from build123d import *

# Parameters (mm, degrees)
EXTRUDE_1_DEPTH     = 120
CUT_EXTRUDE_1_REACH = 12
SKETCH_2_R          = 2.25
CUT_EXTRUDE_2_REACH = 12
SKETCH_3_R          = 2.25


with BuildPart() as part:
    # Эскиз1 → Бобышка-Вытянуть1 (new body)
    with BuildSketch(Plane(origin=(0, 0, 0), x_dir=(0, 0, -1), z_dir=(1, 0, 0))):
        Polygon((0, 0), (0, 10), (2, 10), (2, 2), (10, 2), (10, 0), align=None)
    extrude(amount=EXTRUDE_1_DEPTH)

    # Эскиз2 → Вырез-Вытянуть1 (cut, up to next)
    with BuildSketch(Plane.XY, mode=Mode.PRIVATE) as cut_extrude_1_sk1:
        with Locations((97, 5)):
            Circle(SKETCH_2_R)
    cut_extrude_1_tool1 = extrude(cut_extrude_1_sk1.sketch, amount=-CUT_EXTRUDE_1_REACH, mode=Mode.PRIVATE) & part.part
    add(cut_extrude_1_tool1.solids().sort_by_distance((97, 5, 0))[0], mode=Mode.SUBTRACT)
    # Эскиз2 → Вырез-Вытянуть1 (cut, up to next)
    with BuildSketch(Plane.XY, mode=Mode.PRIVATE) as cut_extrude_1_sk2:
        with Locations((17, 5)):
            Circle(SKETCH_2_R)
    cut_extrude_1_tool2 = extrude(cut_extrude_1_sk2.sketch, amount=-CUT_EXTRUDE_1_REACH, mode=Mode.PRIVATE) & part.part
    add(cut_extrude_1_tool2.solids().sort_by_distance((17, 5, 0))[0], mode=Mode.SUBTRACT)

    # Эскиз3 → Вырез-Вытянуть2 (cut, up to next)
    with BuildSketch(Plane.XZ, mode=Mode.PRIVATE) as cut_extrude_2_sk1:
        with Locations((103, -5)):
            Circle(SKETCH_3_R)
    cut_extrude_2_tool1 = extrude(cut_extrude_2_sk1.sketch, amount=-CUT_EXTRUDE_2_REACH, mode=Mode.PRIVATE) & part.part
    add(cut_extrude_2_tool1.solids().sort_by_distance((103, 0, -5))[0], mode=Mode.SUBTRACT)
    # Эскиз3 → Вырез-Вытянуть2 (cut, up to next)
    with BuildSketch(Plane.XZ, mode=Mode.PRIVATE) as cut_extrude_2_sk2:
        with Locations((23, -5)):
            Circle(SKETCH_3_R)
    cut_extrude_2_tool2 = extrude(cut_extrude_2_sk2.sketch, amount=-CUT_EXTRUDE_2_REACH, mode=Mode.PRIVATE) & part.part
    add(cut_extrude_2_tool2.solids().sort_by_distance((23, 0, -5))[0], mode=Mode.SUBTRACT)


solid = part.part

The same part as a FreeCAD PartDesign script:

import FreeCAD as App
import Part
import Sketcher
Q = App.Units.Quantity


def add_polygon(sketch, points):
    """Adds a closed chain of lines whose ends are joined by coincident constraints."""
    first, n = sketch.GeometryCount, len(points)
    for a, b in zip(points, points[1:] + points[:1]):
        sketch.addGeometry(Part.LineSegment(App.Vector(*a, 0), App.Vector(*b, 0)), False)
    for i in range(n):
        sketch.addConstraint(Sketcher.Constraint("Coincident", first + i, 2, first + (i + 1) % n, 1))

doc = App.newDocument("Part")
body = doc.addObject("PartDesign::Body", "Body")

# Sketch on YZ plane
sketch1 = body.newObject("Sketcher::SketchObject", "Sketch")
sketch1.AttachmentSupport = (doc.getObject("YZ_Plane"), [""])
sketch1.MapMode = "FlatFace"
add_polygon(sketch1, [(10, 0), (0, 0), (0, -10), (2, -10), (2, -2), (10, -2)])  # lines 0-5
sketch1.addConstraint(Sketcher.Constraint("Horizontal", 0))
sketch1.addConstraint(Sketcher.Constraint("Vertical", 1))
sketch1.addConstraint(Sketcher.Constraint("Horizontal", 2))
sketch1.addConstraint(Sketcher.Constraint("Vertical", 3))
sketch1.addConstraint(Sketcher.Constraint("Horizontal", 4))
sketch1.addConstraint(Sketcher.Constraint("Vertical", 5))
sketch1.addConstraint(Sketcher.Constraint("Coincident", 0, 2, -1, 1))
sketch1.addConstraint(Sketcher.Constraint("Equal", 0, 1))
sketch1.addConstraint(Sketcher.Constraint("Equal", 4, 3))
sketch1.addConstraint(Sketcher.Constraint("DistanceX", 0, 2, 0, 1, Q("10 mm")))
sketch1.addConstraint(Sketcher.Constraint("DistanceX", 2, 1, 2, 2, Q("2 mm")))
pad1 = body.newObject("PartDesign::Pad", "Pad")
pad1.Profile = sketch1
pad1.Length = 120

# Sketch on XY plane
sketch2 = body.newObject("Sketcher::SketchObject", "Sketch001")
sketch2.AttachmentSupport = (doc.getObject("XY_Plane"), [""])
sketch2.MapMode = "FlatFace"
sketch2.addGeometry(Part.Circle(App.Vector(97, 5, 0), App.Vector(0, 0, 1), 2.2), False)
sketch2.addConstraint(Sketcher.Constraint("Diameter", 0, Q("4.5 mm")))
sketch2.addConstraint(Sketcher.Constraint("DistanceX", -1, 1, 0, 3, Q("97 mm")))
sketch2.addConstraint(Sketcher.Constraint("DistanceY", -1, 1, 0, 3, Q("5 mm")))
pocket1 = body.newObject("PartDesign::Pocket", "Pocket")
pocket1.Profile = sketch2
pocket1.Type = "UpToFirst"

# Sketch on XY plane
sketch3 = body.newObject("Sketcher::SketchObject", "Sketch002")
sketch3.AttachmentSupport = (doc.getObject("XY_Plane"), [""])
sketch3.MapMode = "FlatFace"
sketch3.addGeometry(Part.Circle(App.Vector(17, 5, 0), App.Vector(0, 0, 1), 2.2), False)
sketch3.addConstraint(Sketcher.Constraint("Diameter", 0, Q("4.5 mm")))
sketch3.addConstraint(Sketcher.Constraint("DistanceX", -1, 1, 0, 3, Q("17 mm")))
sketch3.addConstraint(Sketcher.Constraint("DistanceY", -1, 1, 0, 3, Q("5 mm")))
pocket2 = body.newObject("PartDesign::Pocket", "Pocket001")
pocket2.Profile = sketch3
pocket2.Type = "UpToFirst"

# Sketch on XZ plane
sketch4 = body.newObject("Sketcher::SketchObject", "Sketch003")
sketch4.AttachmentSupport = (doc.getObject("XZ_Plane"), [""])
sketch4.MapMode = "FlatFace"
sketch4.addGeometry(Part.Circle(App.Vector(103, -5, 0), App.Vector(0, 0, 1), 2.2), False)
sketch4.addConstraint(Sketcher.Constraint("Diameter", 0, Q("4.5 mm")))
sketch4.addConstraint(Sketcher.Constraint("DistanceX", -1, 1, 0, 3, Q("103 mm")))
sketch4.addConstraint(Sketcher.Constraint("DistanceY", 0, 3, -1, 1, Q("5 mm")))
pocket3 = body.newObject("PartDesign::Pocket", "Pocket002")
pocket3.Profile = sketch4
pocket3.Type = "UpToFirst"

# Sketch on XZ plane
sketch5 = body.newObject("Sketcher::SketchObject", "Sketch004")
sketch5.AttachmentSupport = (doc.getObject("XZ_Plane"), [""])
sketch5.MapMode = "FlatFace"
sketch5.addGeometry(Part.Circle(App.Vector(23, -5, 0), App.Vector(0, 0, 1), 2.2), False)
sketch5.addConstraint(Sketcher.Constraint("Diameter", 0, Q("4.5 mm")))
sketch5.addConstraint(Sketcher.Constraint("DistanceX", -1, 1, 0, 3, Q("23 mm")))
sketch5.addConstraint(Sketcher.Constraint("DistanceY", 0, 3, -1, 1, Q("5 mm")))
pocket4 = body.newObject("PartDesign::Pocket", "Pocket003")
pocket4.Profile = sketch5
pocket4.Type = "UpToFirst"

doc.recompute()
